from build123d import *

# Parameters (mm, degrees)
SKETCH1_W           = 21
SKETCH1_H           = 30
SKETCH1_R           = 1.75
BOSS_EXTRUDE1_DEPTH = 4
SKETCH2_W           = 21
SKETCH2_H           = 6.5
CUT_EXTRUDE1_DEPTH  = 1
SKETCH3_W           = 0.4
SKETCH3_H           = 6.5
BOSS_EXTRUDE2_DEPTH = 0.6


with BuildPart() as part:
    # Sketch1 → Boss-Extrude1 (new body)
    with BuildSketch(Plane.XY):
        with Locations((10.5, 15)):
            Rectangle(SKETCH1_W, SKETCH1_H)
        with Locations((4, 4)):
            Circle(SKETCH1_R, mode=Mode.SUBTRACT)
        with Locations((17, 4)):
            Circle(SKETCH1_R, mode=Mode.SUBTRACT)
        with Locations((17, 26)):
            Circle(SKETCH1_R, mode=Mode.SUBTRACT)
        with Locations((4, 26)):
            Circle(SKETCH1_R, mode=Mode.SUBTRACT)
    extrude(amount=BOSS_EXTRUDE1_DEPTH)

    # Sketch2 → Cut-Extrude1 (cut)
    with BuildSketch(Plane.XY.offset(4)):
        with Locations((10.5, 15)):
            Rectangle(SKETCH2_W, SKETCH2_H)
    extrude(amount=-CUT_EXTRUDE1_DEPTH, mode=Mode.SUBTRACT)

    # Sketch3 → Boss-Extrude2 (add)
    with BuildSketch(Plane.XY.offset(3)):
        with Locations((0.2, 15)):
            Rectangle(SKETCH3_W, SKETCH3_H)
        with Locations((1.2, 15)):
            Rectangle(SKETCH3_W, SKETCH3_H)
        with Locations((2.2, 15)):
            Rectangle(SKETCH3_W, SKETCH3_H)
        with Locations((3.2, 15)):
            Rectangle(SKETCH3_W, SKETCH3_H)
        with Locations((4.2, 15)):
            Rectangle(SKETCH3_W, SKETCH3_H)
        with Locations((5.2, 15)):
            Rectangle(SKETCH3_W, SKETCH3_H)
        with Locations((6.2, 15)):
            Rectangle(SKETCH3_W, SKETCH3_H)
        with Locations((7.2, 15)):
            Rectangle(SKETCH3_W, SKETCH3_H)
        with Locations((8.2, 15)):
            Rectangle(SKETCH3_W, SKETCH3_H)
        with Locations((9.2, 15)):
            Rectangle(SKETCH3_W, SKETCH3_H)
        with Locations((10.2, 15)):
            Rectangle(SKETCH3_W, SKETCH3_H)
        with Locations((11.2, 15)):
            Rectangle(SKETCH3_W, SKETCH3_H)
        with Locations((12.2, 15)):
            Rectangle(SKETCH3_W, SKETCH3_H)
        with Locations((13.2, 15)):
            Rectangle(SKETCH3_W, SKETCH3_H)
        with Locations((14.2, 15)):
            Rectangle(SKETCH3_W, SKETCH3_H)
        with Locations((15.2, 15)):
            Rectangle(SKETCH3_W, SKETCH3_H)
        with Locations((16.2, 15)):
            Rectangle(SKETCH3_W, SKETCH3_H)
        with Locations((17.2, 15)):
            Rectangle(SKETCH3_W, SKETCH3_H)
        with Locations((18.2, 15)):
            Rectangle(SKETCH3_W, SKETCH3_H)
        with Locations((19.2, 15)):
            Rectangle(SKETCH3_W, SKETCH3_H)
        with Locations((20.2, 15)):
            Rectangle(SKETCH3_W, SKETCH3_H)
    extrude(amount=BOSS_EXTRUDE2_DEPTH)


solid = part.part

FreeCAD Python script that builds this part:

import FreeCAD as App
import Part
import Sketcher

V = App.Vector


def add_polygon(sketch, points):
    """Adds a closed chain of lines whose ends are joined by coincident constraints."""
    first, n = sketch.GeometryCount, len(points)
    for a, b in zip(points, points[1:] + points[:1]):
        sketch.addGeometry(Part.LineSegment(App.Vector(*a, 0), App.Vector(*b, 0)), False)
    for i in range(n):
        sketch.addConstraint(Sketcher.Constraint("Coincident", first + i, 2, first + (i + 1) % n, 1))

doc = App.newDocument("Part")
body = doc.addObject("PartDesign::Body", "Body")

# Sketch on XY plane
sketch1 = body.newObject("Sketcher::SketchObject", "Sketch")
sketch1.AttachmentSupport = (doc.getObject("XY_Plane"), [""])
sketch1.MapMode = "FlatFace"
add_polygon(sketch1, [(0, 30), (0, 0), (21, 0), (21, 30)])  # lines 0-3
sketch1.addGeometry(Part.Circle(V(4, 4, 0), V(0, 0, 1), 1.8), False)  # 4
sketch1.addGeometry(Part.Circle(V(17, 4, 0), V(0, 0, 1), 1.8), False)  # 5
sketch1.addGeometry(Part.Circle(V(4, 26, 0), V(0, 0, 1), 1.8), False)  # 6
sketch1.addGeometry(Part.Circle(V(17, 26, 0), V(0, 0, 1), 1.8), False)  # 7
sketch1.addConstraint([
    Sketcher.Constraint("Vertical", 0),
    Sketcher.Constraint("Horizontal", 1),
    Sketcher.Constraint("Vertical", 2),
    Sketcher.Constraint("Horizontal", 3),
    Sketcher.Constraint("Coincident", 0, 2, -1, 1),
    Sketcher.Constraint("Equal", 4, 5),
    Sketcher.Constraint("Equal", 5, 6),
    Sketcher.Constraint("Equal", 6, 7),
    Sketcher.Constraint("Horizontal", 4, 3, 5, 3),
    Sketcher.Constraint("Horizontal", 6, 3, 7, 3),
    Sketcher.Constraint("Vertical", 4, 3, 6, 3),
    Sketcher.Constraint("Vertical", 5, 3, 7, 3),
    Sketcher.Constraint("Diameter", 4, 3.5),
    Sketcher.Constraint("DistanceX", 1, 1, 1, 2, 21.0),
    Sketcher.Constraint("DistanceY", 0, 2, 0, 1, 30.0),
    Sketcher.Constraint("DistanceX", -1, 1, 4, 3, 4.0),
    Sketcher.Constraint("DistanceY", -1, 1, 4, 3, 4.0),
    Sketcher.Constraint("DistanceX", -1, 1, 5, 3, 17.0),
    Sketcher.Constraint("DistanceY", -1, 1, 6, 3, 26.0),
])
pad1 = body.newObject("PartDesign::Pad", "Pad")
pad1.Profile = sketch1
pad1.Length = 4

# Sketch on XY plane
sketch2 = body.newObject("Sketcher::SketchObject", "Sketch001")
sketch2.AttachmentSupport = (doc.getObject("XY_Plane"), [""])
sketch2.MapMode = "FlatFace"
sketch2.AttachmentOffset = App.Placement(V(0, 0, 4), App.Rotation())
add_polygon(sketch2, [(0, 18), (0, 12), (21, 12), (21, 18)])  # lines 0-3
sketch2.addConstraint([
    Sketcher.Constraint("Vertical", 0),
    Sketcher.Constraint("Horizontal", 1),
    Sketcher.Constraint("Vertical", 2),
    Sketcher.Constraint("Horizontal", 3),
    Sketcher.Constraint("PointOnObject", 0, 2, -2),
    Sketcher.Constraint("DistanceX", 1, 1, 1, 2, 21.0),
    Sketcher.Constraint("DistanceY", 0, 2, 0, 1, 6.5),
    Sketcher.Constraint("DistanceY", -1, 1, 0, 2, 11.75),
])
pocket1 = body.newObject("PartDesign::Pocket", "Pocket")
pocket1.Profile = sketch2
pocket1.Length = 1

# Sketch on XY plane
sketch3 = body.newObject("Sketcher::SketchObject", "Sketch002")
sketch3.AttachmentSupport = (doc.getObject("XY_Plane"), [""])
sketch3.MapMode = "FlatFace"
sketch3.AttachmentOffset = App.Placement(V(0, 0, 3), App.Rotation())
add_polygon(sketch3, [(0, 18.25), (0, 11.75), (0.4, 11.75), (0.4, 18.25)])  # lines 0-3
add_polygon(sketch3, [(1, 18.25), (1, 11.75), (1.4, 11.75), (1.4, 18.25)])  # lines 4-7
add_polygon(sketch3, [(2, 18.25), (2, 11.75), (2.4, 11.75), (2.4, 18.25)])  # lines 8-11
add_polygon(sketch3, [(3, 18.25), (3, 11.75), (3.4, 11.75), (3.4, 18.25)])  # lines 12-15
add_polygon(sketch3, [(4, 18.25), (4, 11.75), (4.4, 11.75), (4.4, 18.25)])  # lines 16-19
add_polygon(sketch3, [(5, 18.25), (5, 11.75), (5.4, 11.75), (5.4, 18.25)])  # lines 20-23
add_polygon(sketch3, [(6, 18.25), (6, 11.75), (6.4, 11.75), (6.4, 18.25)])  # lines 24-27
add_polygon(sketch3, [(7, 18.25), (7, 11.75), (7.4, 11.75), (7.4, 18.25)])  # lines 28-31
add_polygon(sketch3, [(8, 18.25), (8, 11.75), (8.4, 11.75), (8.4, 18.25)])  # lines 32-35
add_polygon(sketch3, [(9, 18.25), (9, 11.75), (9.4, 11.75), (9.4, 18.25)])  # lines 36-39
add_polygon(sketch3, [(10, 18.25), (10, 11.75), (10.4, 11.75), (10.4, 18.25)])  # lines 40-43
add_polygon(sketch3, [(11, 18.25), (11, 11.75), (11.4, 11.75), (11.4, 18.25)])  # lines 44-47
add_polygon(sketch3, [(12, 18.25), (12, 11.75), (12.4, 11.75), (12.4, 18.25)])  # lines 48-51
add_polygon(sketch3, [(13, 18.25), (13, 11.75), (13.4, 11.75), (13.4, 18.25)])  # lines 52-55
add_polygon(sketch3, [(14, 18.25), (14, 11.75), (14.4, 11.75), (14.4, 18.25)])  # lines 56-59
add_polygon(sketch3, [(15, 18.25), (15, 11.75), (15.4, 11.75), (15.4, 18.25)])  # lines 60-63
add_polygon(sketch3, [(16, 18.25), (16, 11.75), (16.4, 11.75), (16.4, 18.25)])  # lines 64-67
add_polygon(sketch3, [(17, 18.25), (17, 11.75), (17.4, 11.75), (17.4, 18.25)])  # lines 68-71
add_polygon(sketch3, [(18, 18.25), (18, 11.75), (18.4, 11.75), (18.4, 18.25)])  # lines 72-75
add_polygon(sketch3, [(19, 18.25), (19, 11.75), (19.4, 11.75), (19.4, 18.25)])  # lines 76-79
add_polygon(sketch3, [(20, 18.25), (20, 11.75), (20.4, 11.75), (20.4, 18.25)])  # lines 80-83
sketch3.addConstraint([
    Sketcher.Constraint("Vertical", 0),
    Sketcher.Constraint("Horizontal", 1),
    Sketcher.Constraint("Vertical", 2),
    Sketcher.Constraint("Horizontal", 3),
    Sketcher.Constraint("Vertical", 4),
    Sketcher.Constraint("Horizontal", 5),
    Sketcher.Constraint("Vertical", 6),
    Sketcher.Constraint("Horizontal", 7),
    Sketcher.Constraint("Vertical", 8),
    Sketcher.Constraint("Horizontal", 9),
    Sketcher.Constraint("Vertical", 10),
    Sketcher.Constraint("Horizontal", 11),
    Sketcher.Constraint("Vertical", 12),
    Sketcher.Constraint("Horizontal", 13),
    Sketcher.Constraint("Vertical", 14),
    Sketcher.Constraint("Horizontal", 15),
    Sketcher.Constraint("Vertical", 16),
    Sketcher.Constraint("Horizontal", 17),
    Sketcher.Constraint("Vertical", 18),
    Sketcher.Constraint("Horizontal", 19),
    Sketcher.Constraint("Vertical", 20),
    Sketcher.Constraint("Horizontal", 21),
    Sketcher.Constraint("Vertical", 22),
    Sketcher.Constraint("Horizontal", 23),
    Sketcher.Constraint("Vertical", 24),
    Sketcher.Constraint("Horizontal", 25),
    Sketcher.Constraint("Vertical", 26),
    Sketcher.Constraint("Horizontal", 27),
    Sketcher.Constraint("Vertical", 28),
    Sketcher.Constraint("Horizontal", 29),
    Sketcher.Constraint("Vertical", 30),
    Sketcher.Constraint("Horizontal", 31),
    Sketcher.Constraint("Vertical", 32),
    Sketcher.Constraint("Horizontal", 33),
    Sketcher.Constraint("Vertical", 34),
    Sketcher.Constraint("Horizontal", 35),
    Sketcher.Constraint("Vertical", 36),
    Sketcher.Constraint("Horizontal", 37),
    Sketcher.Constraint("Vertical", 38),
    Sketcher.Constraint("Horizontal", 39),
    Sketcher.Constraint("Vertical", 40),
    Sketcher.Constraint("Horizontal", 41),
    Sketcher.Constraint("Vertical", 42),
    Sketcher.Constraint("Horizontal", 43),
    Sketcher.Constraint("Vertical", 44),
    Sketcher.Constraint("Horizontal", 45),
    Sketcher.Constraint("Vertical", 46),
    Sketcher.Constraint("Horizontal", 47),
    Sketcher.Constraint("Vertical", 48),
    Sketcher.Constraint("Horizontal", 49),
    Sketcher.Constraint("Vertical", 50),
    Sketcher.Constraint("Horizontal", 51),
    Sketcher.Constraint("Vertical", 52),
    Sketcher.Constraint("Horizontal", 53),
    Sketcher.Constraint("Vertical", 54),
    Sketcher.Constraint("Horizontal", 55),
    Sketcher.Constraint("Vertical", 56),
    Sketcher.Constraint("Horizontal", 57),
    Sketcher.Constraint("Vertical", 58),
    Sketcher.Constraint("Horizontal", 59),
    Sketcher.Constraint("Vertical", 60),
    Sketcher.Constraint("Horizontal", 61),
    Sketcher.Constraint("Vertical", 62),
    Sketcher.Constraint("Horizontal", 63),
    Sketcher.Constraint("Vertical", 64),
    Sketcher.Constraint("Horizontal", 65),
    Sketcher.Constraint("Vertical", 66),
    Sketcher.Constraint("Horizontal", 67),
    Sketcher.Constraint("Vertical", 68),
    Sketcher.Constraint("Horizontal", 69),
    Sketcher.Constraint("Vertical", 70),
    Sketcher.Constraint("Horizontal", 71),
    Sketcher.Constraint("Vertical", 72),
    Sketcher.Constraint("Horizontal", 73),
    Sketcher.Constraint("Vertical", 74),
    Sketcher.Constraint("Horizontal", 75),
    Sketcher.Constraint("Vertical", 76),
    Sketcher.Constraint("Horizontal", 77),
    Sketcher.Constraint("Vertical", 78),
    Sketcher.Constraint("Horizontal", 79),
    Sketcher.Constraint("Vertical", 80),
    Sketcher.Constraint("Horizontal", 81),
    Sketcher.Constraint("Vertical", 82),
    Sketcher.Constraint("Horizontal", 83),
    Sketcher.Constraint("PointOnObject", 0, 2, -2),
    Sketcher.Constraint("Horizontal", 1, 2, 4, 2),
    Sketcher.Constraint("Horizontal", 3, 2, 6, 2),
    Sketcher.Constraint("Horizontal", 5, 2, 8, 2),
    Sketcher.Constraint("Horizontal", 7, 2, 10, 2),
    Sketcher.Constraint("Horizontal", 9, 2, 12, 2),
    Sketcher.Constraint("Horizontal", 11, 2, 14, 2),
    Sketcher.Constraint("Horizontal", 13, 2, 16, 2),
    Sketcher.Constraint("Horizontal", 15, 2, 18, 2),
    Sketcher.Constraint("Horizontal", 17, 2, 20, 2),
    Sketcher.Constraint("Horizontal", 19, 2, 22, 2),
    Sketcher.Constraint("Horizontal", 21, 2, 24, 2),
    Sketcher.Constraint("Horizontal", 23, 2, 26, 2),
    Sketcher.Constraint("Horizontal", 25, 2, 28, 2),
    Sketcher.Constraint("Horizontal", 27, 2, 30, 2),
    Sketcher.Constraint("Horizontal", 29, 2, 32, 2),
    Sketcher.Constraint("Horizontal", 31, 2, 34, 2),
    Sketcher.Constraint("Horizontal", 33, 2, 36, 2),
    Sketcher.Constraint("Horizontal", 35, 2, 38, 2),
    Sketcher.Constraint("Horizontal", 37, 2, 40, 2),
    Sketcher.Constraint("Horizontal", 39, 2, 42, 2),
    Sketcher.Constraint("Horizontal", 41, 2, 44, 2),
    Sketcher.Constraint("Horizontal", 43, 2, 46, 2),
    Sketcher.Constraint("Horizontal", 45, 2, 48, 2),
    Sketcher.Constraint("Horizontal", 47, 2, 50, 2),
    Sketcher.Constraint("Horizontal", 49, 2, 52, 2),
    Sketcher.Constraint("Horizontal", 51, 2, 54, 2),
    Sketcher.Constraint("Horizontal", 53, 2, 56, 2),
    Sketcher.Constraint("Horizontal", 55, 2, 58, 2),
    Sketcher.Constraint("Horizontal", 57, 2, 60, 2),
    Sketcher.Constraint("Horizontal", 59, 2, 62, 2),
    Sketcher.Constraint("Horizontal", 61, 2, 64, 2),
    Sketcher.Constraint("Horizontal", 63, 2, 66, 2),
    Sketcher.Constraint("Horizontal", 65, 2, 68, 2),
    Sketcher.Constraint("Horizontal", 67, 2, 70, 2),
    Sketcher.Constraint("Horizontal", 69, 2, 72, 2),
    Sketcher.Constraint("Horizontal", 71, 2, 74, 2),
    Sketcher.Constraint("Horizontal", 73, 2, 76, 2),
    Sketcher.Constraint("Horizontal", 75, 2, 78, 2),
    Sketcher.Constraint("Horizontal", 77, 2, 80, 2),
    Sketcher.Constraint("Horizontal", 79, 2, 82, 2),
    Sketcher.Constraint("Equal", 3, 5),
    Sketcher.Constraint("Equal", 7, 9),
    Sketcher.Constraint("Equal", 11, 13),
    Sketcher.Constraint("Equal", 15, 17),
    Sketcher.Constraint("Equal", 19, 21),
    Sketcher.Constraint("Equal", 23, 25),
    Sketcher.Constraint("Equal", 27, 29),
    Sketcher.Constraint("Equal", 31, 33),
    Sketcher.Constraint("Equal", 35, 37),
    Sketcher.Constraint("Equal", 39, 41),
    Sketcher.Constraint("Equal", 43, 45),
    Sketcher.Constraint("Equal", 47, 49),
    Sketcher.Constraint("Equal", 51, 53),
    Sketcher.Constraint("Equal", 55, 57),
    Sketcher.Constraint("Equal", 59, 61),
    Sketcher.Constraint("Equal", 63, 65),
    Sketcher.Constraint("Equal", 67, 69),
    Sketcher.Constraint("Equal", 71, 73),
    Sketcher.Constraint("Equal", 75, 77),
    Sketcher.Constraint("Equal", 79, 81),
    Sketcher.Constraint("DistanceX", 1, 1, 1, 2, 0.4),
    Sketcher.Constraint("DistanceY", 0, 2, 0, 1, 6.5),
    Sketcher.Constraint("DistanceX", -1, 1, 4, 2, 1.0),
    Sketcher.Constraint("DistanceX", -1, 1, 8, 2, 2.0),
    Sketcher.Constraint("DistanceX", -1, 1, 12, 2, 3.0),
    Sketcher.Constraint("DistanceX", -1, 1, 16, 2, 4.0),
    Sketcher.Constraint("DistanceX", -1, 1, 20, 2, 5.0),
    Sketcher.Constraint("DistanceX", -1, 1, 24, 2, 6.0),
    Sketcher.Constraint("DistanceX", -1, 1, 28, 2, 7.0),
    Sketcher.Constraint("DistanceX", -1, 1, 32, 2, 8.0),
    Sketcher.Constraint("DistanceX", -1, 1, 36, 2, 9.0),
    Sketcher.Constraint("DistanceX", -1, 1, 40, 2, 10.0),
    Sketcher.Constraint("DistanceX", -1, 1, 44, 2, 11.0),
    Sketcher.Constraint("DistanceX", -1, 1, 48, 2, 12.0),
    Sketcher.Constraint("DistanceX", -1, 1, 52, 2, 13.0),
    Sketcher.Constraint("DistanceX", -1, 1, 56, 2, 14.0),
    Sketcher.Constraint("DistanceX", -1, 1, 60, 2, 15.0),
    Sketcher.Constraint("DistanceX", -1, 1, 64, 2, 16.0),
    Sketcher.Constraint("DistanceX", -1, 1, 68, 2, 17.0),
    Sketcher.Constraint("DistanceX", -1, 1, 72, 2, 18.0),
    Sketcher.Constraint("DistanceX", -1, 1, 76, 2, 19.0),
    Sketcher.Constraint("DistanceX", -1, 1, 80, 2, 20.0),
    Sketcher.Constraint("DistanceY", -1, 1, 0, 2, 11.75),
])
pad2 = body.newObject("PartDesign::Pad", "Pad001")
pad2.Profile = sketch3
pad2.Length = 0.6

doc.recompute()
